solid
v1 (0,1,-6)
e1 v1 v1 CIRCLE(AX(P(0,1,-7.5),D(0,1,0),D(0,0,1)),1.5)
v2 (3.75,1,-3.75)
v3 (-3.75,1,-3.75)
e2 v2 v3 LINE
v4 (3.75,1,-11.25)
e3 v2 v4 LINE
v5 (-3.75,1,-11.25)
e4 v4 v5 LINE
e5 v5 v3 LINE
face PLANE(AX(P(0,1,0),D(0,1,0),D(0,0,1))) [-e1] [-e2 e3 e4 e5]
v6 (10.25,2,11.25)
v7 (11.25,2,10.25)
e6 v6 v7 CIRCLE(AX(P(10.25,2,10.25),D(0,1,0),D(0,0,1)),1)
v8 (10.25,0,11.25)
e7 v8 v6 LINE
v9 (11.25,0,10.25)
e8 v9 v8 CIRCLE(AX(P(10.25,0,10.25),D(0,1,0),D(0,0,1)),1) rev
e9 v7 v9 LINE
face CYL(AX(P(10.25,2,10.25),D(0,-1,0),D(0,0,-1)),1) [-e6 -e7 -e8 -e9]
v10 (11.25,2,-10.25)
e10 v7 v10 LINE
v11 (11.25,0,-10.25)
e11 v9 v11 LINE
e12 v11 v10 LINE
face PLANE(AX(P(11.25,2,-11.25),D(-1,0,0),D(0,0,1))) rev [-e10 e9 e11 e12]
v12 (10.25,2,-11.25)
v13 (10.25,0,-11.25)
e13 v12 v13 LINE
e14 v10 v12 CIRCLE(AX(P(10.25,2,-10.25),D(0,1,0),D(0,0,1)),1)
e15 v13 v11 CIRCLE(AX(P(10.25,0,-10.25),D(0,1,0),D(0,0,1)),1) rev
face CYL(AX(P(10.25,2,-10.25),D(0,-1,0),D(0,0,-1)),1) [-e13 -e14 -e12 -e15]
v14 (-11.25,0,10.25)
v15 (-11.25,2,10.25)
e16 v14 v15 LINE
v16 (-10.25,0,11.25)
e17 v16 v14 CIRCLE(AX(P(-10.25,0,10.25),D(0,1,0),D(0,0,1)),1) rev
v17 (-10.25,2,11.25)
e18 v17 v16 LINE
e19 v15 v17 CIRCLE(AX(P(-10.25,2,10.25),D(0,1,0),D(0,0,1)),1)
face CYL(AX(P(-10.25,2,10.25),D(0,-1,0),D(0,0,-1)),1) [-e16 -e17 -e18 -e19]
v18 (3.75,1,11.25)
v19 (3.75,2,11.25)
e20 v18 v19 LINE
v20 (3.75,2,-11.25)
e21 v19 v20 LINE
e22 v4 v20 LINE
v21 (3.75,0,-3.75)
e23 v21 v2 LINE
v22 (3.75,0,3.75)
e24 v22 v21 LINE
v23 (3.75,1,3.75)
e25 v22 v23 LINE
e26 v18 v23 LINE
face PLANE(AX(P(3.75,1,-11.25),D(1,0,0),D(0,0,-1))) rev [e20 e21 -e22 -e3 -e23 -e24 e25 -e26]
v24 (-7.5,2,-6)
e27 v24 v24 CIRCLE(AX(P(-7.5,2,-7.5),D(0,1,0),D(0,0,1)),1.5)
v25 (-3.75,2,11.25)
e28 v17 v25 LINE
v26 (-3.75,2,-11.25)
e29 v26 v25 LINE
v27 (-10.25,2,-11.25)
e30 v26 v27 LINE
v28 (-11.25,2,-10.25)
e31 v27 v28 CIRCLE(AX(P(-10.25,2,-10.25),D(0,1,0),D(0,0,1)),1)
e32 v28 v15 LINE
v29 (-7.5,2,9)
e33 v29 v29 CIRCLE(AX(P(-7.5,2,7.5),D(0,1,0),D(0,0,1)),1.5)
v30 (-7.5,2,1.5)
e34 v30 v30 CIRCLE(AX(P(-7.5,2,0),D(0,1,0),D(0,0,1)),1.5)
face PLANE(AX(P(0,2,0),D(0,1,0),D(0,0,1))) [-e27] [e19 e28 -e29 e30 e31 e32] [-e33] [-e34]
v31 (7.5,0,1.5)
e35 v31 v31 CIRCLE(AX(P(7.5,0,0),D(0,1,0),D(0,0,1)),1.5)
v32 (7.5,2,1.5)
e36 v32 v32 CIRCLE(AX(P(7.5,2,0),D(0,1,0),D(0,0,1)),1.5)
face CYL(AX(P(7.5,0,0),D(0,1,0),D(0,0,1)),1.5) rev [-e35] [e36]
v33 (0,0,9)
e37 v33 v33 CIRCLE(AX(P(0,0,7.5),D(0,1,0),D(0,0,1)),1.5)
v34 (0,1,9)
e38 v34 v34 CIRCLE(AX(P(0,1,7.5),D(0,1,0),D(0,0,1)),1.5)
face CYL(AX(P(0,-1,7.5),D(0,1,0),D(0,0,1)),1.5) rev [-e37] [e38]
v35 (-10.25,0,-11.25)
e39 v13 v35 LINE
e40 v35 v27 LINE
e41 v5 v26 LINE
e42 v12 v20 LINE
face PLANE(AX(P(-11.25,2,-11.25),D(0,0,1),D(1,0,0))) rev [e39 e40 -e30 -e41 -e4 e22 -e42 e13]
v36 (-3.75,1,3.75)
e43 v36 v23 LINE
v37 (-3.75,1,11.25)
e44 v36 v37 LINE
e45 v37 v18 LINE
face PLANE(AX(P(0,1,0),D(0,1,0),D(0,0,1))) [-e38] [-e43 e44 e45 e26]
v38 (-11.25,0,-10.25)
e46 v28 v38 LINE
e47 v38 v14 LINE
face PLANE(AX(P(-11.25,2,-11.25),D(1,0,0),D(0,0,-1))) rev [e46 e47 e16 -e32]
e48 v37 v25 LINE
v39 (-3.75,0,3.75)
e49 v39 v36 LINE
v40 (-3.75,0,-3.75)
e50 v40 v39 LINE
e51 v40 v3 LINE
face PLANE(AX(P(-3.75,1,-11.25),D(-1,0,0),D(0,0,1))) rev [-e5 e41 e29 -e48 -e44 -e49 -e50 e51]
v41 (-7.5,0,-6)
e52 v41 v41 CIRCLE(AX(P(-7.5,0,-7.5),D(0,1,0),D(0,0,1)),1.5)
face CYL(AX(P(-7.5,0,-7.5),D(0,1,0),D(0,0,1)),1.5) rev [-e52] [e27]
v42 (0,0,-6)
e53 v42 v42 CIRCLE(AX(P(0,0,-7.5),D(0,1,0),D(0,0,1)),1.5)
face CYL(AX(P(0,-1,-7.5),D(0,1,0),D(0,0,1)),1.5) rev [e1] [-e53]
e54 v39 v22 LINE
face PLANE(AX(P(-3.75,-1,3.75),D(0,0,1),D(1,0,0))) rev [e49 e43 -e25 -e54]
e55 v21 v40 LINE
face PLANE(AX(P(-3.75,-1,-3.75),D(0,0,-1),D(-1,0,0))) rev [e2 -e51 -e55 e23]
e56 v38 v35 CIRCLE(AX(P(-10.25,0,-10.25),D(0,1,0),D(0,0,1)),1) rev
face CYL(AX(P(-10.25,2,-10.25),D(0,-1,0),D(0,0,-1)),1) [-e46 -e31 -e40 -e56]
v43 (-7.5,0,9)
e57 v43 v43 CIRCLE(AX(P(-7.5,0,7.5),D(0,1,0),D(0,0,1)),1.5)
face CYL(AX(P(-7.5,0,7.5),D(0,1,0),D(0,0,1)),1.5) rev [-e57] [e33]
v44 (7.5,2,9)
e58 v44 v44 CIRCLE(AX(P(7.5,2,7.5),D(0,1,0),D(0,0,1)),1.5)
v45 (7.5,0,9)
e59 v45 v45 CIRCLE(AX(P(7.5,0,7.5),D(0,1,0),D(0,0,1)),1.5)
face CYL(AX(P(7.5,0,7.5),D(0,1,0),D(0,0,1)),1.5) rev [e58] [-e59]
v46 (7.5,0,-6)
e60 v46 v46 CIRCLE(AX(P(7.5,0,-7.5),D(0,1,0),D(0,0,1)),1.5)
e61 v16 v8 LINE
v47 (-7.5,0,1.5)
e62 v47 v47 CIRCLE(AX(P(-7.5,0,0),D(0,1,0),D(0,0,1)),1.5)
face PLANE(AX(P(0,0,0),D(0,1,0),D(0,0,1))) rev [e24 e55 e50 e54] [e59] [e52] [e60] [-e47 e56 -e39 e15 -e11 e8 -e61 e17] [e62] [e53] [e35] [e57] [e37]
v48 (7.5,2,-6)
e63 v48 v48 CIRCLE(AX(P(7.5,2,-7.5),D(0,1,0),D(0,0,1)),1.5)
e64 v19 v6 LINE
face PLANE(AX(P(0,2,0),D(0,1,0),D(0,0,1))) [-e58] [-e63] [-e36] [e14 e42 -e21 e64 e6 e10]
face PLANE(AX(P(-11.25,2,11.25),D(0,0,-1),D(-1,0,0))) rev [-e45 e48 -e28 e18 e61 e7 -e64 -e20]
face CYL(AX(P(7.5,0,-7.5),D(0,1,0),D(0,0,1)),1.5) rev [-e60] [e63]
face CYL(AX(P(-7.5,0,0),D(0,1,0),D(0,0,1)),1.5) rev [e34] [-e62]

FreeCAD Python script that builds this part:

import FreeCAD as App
import Part
import Sketcher


def edges_at(feature, points):
    """Names of the edges that pass closest to the given points."""
    edges = feature.Shape.Edges
    near = lambda p: min(range(len(edges)), key=lambda i: edges[i].distToShape(Part.Vertex(*p))[0])
    return sorted({f"Edge{near(p) + 1}" for p in points})


def add_polygon(sketch, points):
    """Adds a closed chain of lines whose ends are joined by coincident constraints."""
    first, n = sketch.GeometryCount, len(points)
    for a, b in zip(points, points[1:] + points[:1]):
        sketch.addGeometry(Part.LineSegment(App.Vector(*a, 0), App.Vector(*b, 0)), False)
    for i in range(n):
        sketch.addConstraint(Sketcher.Constraint("Coincident", first + i, 2, first + (i + 1) % n, 1))

doc = App.newDocument("Part")
params = doc.addObject("Spreadsheet::Sheet", "Params")
for row, (alias, value) in enumerate([
    ("sketch1_width", "22.5 mm"),
    ("pad1_length", "2 mm"),
    ("sketch2_width", "7.5 mm"),
    ("sketch2_height", "22.5 mm"),
    ("pocket1_length", "1 mm"),
    ("sketch3_diameter", "3 mm"),
    ("pocket2_length", "2 mm"),
    ("sketch4_width", "7.5 mm"),
    ("pocket3_length", "2 mm"),
    ("sketch5_diameter", "3 mm"),
    ("pocket4_length", "2 mm"),
    ("sketch6_diameter", "3 mm"),
    ("pocket5_length", "2 mm"),
    ("fillet_radius", "1 mm"),
], start=1):
    params.set(f"A{row}", alias)
    params.set(f"B{row}", "=" + value)
    params.setAlias(f"B{row}", alias)

body = doc.addObject("PartDesign::Body", "Body")

sketch1 = body.newObject("Sketcher::SketchObject", "Sketch")
sketch1.AttachmentSupport = (doc.getObject("XZ_Plane"), [""])
sketch1.MapMode = "FlatFace"
add_polygon(sketch1, [(-11, -11), (-11, 11), (11, 11), (11, -11)])
sketch1.addConstraint([
    Sketcher.Constraint("Vertical", 0),
    Sketcher.Constraint("Horizontal", 1),
    Sketcher.Constraint("Vertical", 2),
    Sketcher.Constraint("Horizontal", 3),
    Sketcher.Constraint("Symmetric", 0, 2, 2, 2, -1, 1),
    Sketcher.Constraint("Equal", 3, 0),
    Sketcher.Constraint("DistanceX", 1, 1, 1, 2, 22.5),
])
sketch1.setExpression("Constraints[10]", "Params.sketch1_width")
pad1 = body.newObject("PartDesign::Pad", "Pad")
pad1.Profile = sketch1
pad1.setExpression("Length", "Params.pad1_length")
pad1.Reversed = True

sketch2 = body.newObject("Sketcher::SketchObject", "Sketch001")
sketch2.AttachmentSupport = (doc.getObject("XZ_Plane"), [""])
sketch2.MapMode = "FlatFace"
sketch2.AttachmentOffset = App.Placement(App.Vector(0, 0, -2), App.Rotation())
add_polygon(sketch2, [(-4, -11), (-4, 11), (4, 11), (4, -11)])
sketch2.addConstraint([
    Sketcher.Constraint("Vertical", 0),
    Sketcher.Constraint("Horizontal", 1),
    Sketcher.Constraint("Vertical", 2),
    Sketcher.Constraint("Horizontal", 3),
    Sketcher.Constraint("Symmetric", 0, 2, 2, 2, -1, 1),
    Sketcher.Constraint("DistanceX", 1, 1, 1, 2, 7.5),
    Sketcher.Constraint("DistanceY", 0, 1, 0, 2, 22.5),
])
sketch2.setExpression("Constraints[9]", "Params.sketch2_width")
sketch2.setExpression("Constraints[10]", "Params.sketch2_height")
pocket1 = body.newObject("PartDesign::Pocket", "Pocket")
pocket1.Profile = sketch2
pocket1.setExpression("Length", "Params.pocket1_length")
pocket1.Reversed = True

sketch3 = body.newObject("Sketcher::SketchObject", "Sketch002")
sketch3.AttachmentSupport = (doc.getObject("XZ_Plane"), [""])
sketch3.MapMode = "FlatFace"
sketch3.AttachmentOffset = App.Placement(App.Vector(0, 0, -1), App.Rotation())
sketch3.addGeometry([
    Part.Circle(App.Vector(0, -7.5, 0), App.Vector(0, 0, 1), 1.5),
    Part.Circle(App.Vector(0, 7.5, 0), App.Vector(0, 0, 1), 1.5),
], False)
sketch3.addConstraint([
    Sketcher.Constraint("Equal", 0, 1),
    Sketcher.Constraint("Symmetric", 0, 3, 1, 3, -1, 1),
    Sketcher.Constraint("PointOnObject", 0, 3, -2),
    Sketcher.Constraint("Diameter", 0, 3.0),
    Sketcher.Constraint("DistanceY", 0, 3, 1, 3, 15.0),
])
sketch3.setExpression("Constraints[3]", "Params.sketch3_diameter")
pocket2 = body.newObject("PartDesign::Pocket", "Pocket001")
pocket2.Profile = sketch3
pocket2.setExpression("Length", "Params.pocket2_length")
pocket2.Reversed = True

sketch4 = body.newObject("Sketcher::SketchObject", "Sketch003")
sketch4.AttachmentSupport = (doc.getObject("XZ_Plane"), [""])
sketch4.MapMode = "FlatFace"
sketch4.AttachmentOffset = App.Placement(App.Vector(0, 0, -1), App.Rotation())
add_polygon(sketch4, [(-4, -4), (-4, 4), (4, 4), (4, -4)])
sketch4.addConstraint([
    Sketcher.Constraint("Vertical", 0),
    Sketcher.Constraint("Horizontal", 1),
    Sketcher.Constraint("Vertical", 2),
    Sketcher.Constraint("Horizontal", 3),
    Sketcher.Constraint("Symmetric", 0, 2, 2, 2, -1, 1),
    Sketcher.Constraint("Equal", 3, 0),
    Sketcher.Constraint("DistanceX", 1, 1, 1, 2, 7.5),
])
sketch4.setExpression("Constraints[10]", "Params.sketch4_width")
pocket3 = body.newObject("PartDesign::Pocket", "Pocket002")
pocket3.Profile = sketch4
pocket3.setExpression("Length", "Params.pocket3_length")
pocket3.Reversed = True

sketch5 = body.newObject("Sketcher::SketchObject", "Sketch004")
sketch5.AttachmentSupport = (doc.getObject("XZ_Plane"), [""])
sketch5.MapMode = "FlatFace"
sketch5.AttachmentOffset = App.Placement(App.Vector(0, 0, -2), App.Rotation())
sketch5.addGeometry([
    Part.Circle(App.Vector(-7.5, -7.5, 0), App.Vector(0, 0, 1), 1.5),
    Part.Circle(App.Vector(-7.5, 7.5, 0), App.Vector(0, 0, 1), 1.5),
    Part.Circle(App.Vector(-7.5, 0, 0), App.Vector(0, 0, 1), 1.5),
], False)
sketch5.addConstraint([
    Sketcher.Constraint("Equal", 0, 1),
    Sketcher.Constraint("Equal", 1, 2),
    Sketcher.Constraint("Symmetric", 0, 3, 1, 3, -1),
    Sketcher.Constraint("PointOnObject", 2, 3, -1),
    Sketcher.Constraint("Vertical", 1, 3, 2, 3),
    Sketcher.Constraint("Diameter", 0, 3.0),
    Sketcher.Constraint("DistanceY", 0, 3, 1, 3, 15.0),
    Sketcher.Constraint("DistanceX", 0, 3, -1, 1, 7.5),
])
sketch5.setExpression("Constraints[5]", "Params.sketch5_diameter")
pocket4 = body.newObject("PartDesign::Pocket", "Pocket003")
pocket4.Profile = sketch5
pocket4.setExpression("Length", "Params.pocket4_length")
pocket4.Reversed = True

sketch6 = body.newObject("Sketcher::SketchObject", "Sketch005")
sketch6.AttachmentSupport = (doc.getObject("XZ_Plane"), [""])
sketch6.MapMode = "FlatFace"
sketch6.AttachmentOffset = App.Placement(App.Vector(0, 0, -2), App.Rotation())
sketch6.addGeometry([
    Part.Circle(App.Vector(7.5, 0, 0), App.Vector(0, 0, 1), 1.5),
    Part.Circle(App.Vector(7.5, -7.5, 0), App.Vector(0, 0, 1), 1.5),
    Part.Circle(App.Vector(7.5, 7.5, 0), App.Vector(0, 0, 1), 1.5),
], False)
sketch6.addConstraint([
    Sketcher.Constraint("Equal", 0, 1),
    Sketcher.Constraint("Equal", 1, 2),
    Sketcher.Constraint("Symmetric", 1, 3, 2, 3, -1),
    Sketcher.Constraint("PointOnObject", 0, 3, -1),
    Sketcher.Constraint("Vertical", 0, 3, 1, 3),
    Sketcher.Constraint("Diameter", 0, 3.0),
    Sketcher.Constraint("DistanceY", 1, 3, 2, 3, 15.0),
    Sketcher.Constraint("DistanceX", -1, 1, 0, 3, 7.5),
])
sketch6.setExpression("Constraints[5]", "Params.sketch6_diameter")
pocket5 = body.newObject("PartDesign::Pocket", "Pocket004")
pocket5.Profile = sketch6
pocket5.setExpression("Length", "Params.pocket5_length")
pocket5.Reversed = True
doc.recompute()

fillet = body.newObject("PartDesign::Fillet", "Fillet")
fillet.Base = (pocket5, edges_at(pocket5, [
    (11.25, 1, 11.25),
    (-11.25, 1, 11.25),
    (-11.25, 1, -11.25),
    (11.25, 1, -11.25),
]))
fillet.setExpression("Radius", "Params.fillet_radius")

doc.recompute()
